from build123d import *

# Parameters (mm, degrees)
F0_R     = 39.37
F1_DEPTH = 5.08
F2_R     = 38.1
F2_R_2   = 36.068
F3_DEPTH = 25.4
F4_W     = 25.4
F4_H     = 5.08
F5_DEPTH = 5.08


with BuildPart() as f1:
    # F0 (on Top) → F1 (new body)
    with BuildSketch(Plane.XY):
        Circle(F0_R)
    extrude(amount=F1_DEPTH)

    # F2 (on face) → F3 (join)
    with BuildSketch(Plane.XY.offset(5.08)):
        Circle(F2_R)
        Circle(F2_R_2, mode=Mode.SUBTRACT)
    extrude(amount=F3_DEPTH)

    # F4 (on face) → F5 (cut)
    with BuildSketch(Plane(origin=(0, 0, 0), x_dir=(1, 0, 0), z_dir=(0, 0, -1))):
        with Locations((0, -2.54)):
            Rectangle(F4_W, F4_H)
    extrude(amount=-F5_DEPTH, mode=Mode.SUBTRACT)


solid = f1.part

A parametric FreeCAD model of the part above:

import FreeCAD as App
import Part
import Sketcher
Q = App.Units.Quantity

doc = App.newDocument("Part")
body = doc.addObject("PartDesign::Body", "Body")

sketch1 = body.newObject("Sketcher::SketchObject", "Sketch")
sketch1.AttachmentSupport = (doc.getObject("XY_Plane"), [""])
sketch1.MapMode = "FlatFace"
sketch1.addGeometry(Part.Circle(App.Vector(0, 0, 0), App.Vector(0, 0, 1), 39), False)
sketch1.addConstraint([
    Sketcher.Constraint("Coincident", 0, 3, -1, 1),
    Sketcher.Constraint("Diameter", 0, Q("3.1 in")),
])
pad1 = body.newObject("PartDesign::Pad", "Pad")
pad1.Profile = sketch1
pad1.Length = Q("0.2 in")

sketch2 = body.newObject("Sketcher::SketchObject", "Sketch001")
sketch2.AttachmentSupport = (doc.getObject("XY_Plane"), [""])
sketch2.MapMode = "FlatFace"
sketch2.AttachmentOffset = App.Placement(App.Vector(0, 0, 0.2 * 25.4), App.Rotation())
sketch2.addGeometry([
    Part.Circle(App.Vector(0, 0, 0), App.Vector(0, 0, 1), 38),
    Part.Circle(App.Vector(0, 0, 0), App.Vector(0, 0, 1), 36),
], False)
sketch2.addConstraint([
    Sketcher.Constraint("Coincident", 0, 3, -1, 1),
    Sketcher.Constraint("Coincident", 1, 3, -1, 1),
    Sketcher.Constraint("Diameter", 0, Q("3 in")),
    Sketcher.Constraint("Diameter", 1, Q("2.84 in")),
])
pad2 = body.newObject("PartDesign::Pad", "Pad001")
pad2.Profile = sketch2
pad2.Length = Q("1 in")

sketch3 = body.newObject("Sketcher::SketchObject", "Sketch002")
sketch3.AttachmentSupport = (doc.getObject("XY_Plane"), [""])
sketch3.MapMode = "FlatFace"
sketch3.addGeometry([
    Part.LineSegment(App.Vector(-13, 0, 0), App.Vector(-13, 5, 0)),
    Part.LineSegment(App.Vector(-13, 5, 0), App.Vector(13, 5, 0)),
    Part.LineSegment(App.Vector(13, 5, 0), App.Vector(13, 0, 0)),
    Part.LineSegment(App.Vector(13, 0, 0), App.Vector(-13, 0, 0)),
], False)
sketch3.addConstraint([
    Sketcher.Constraint("Coincident", 0, 2, 1, 1),
    Sketcher.Constraint("Coincident", 1, 2, 2, 1),
    Sketcher.Constraint("Coincident", 2, 2, 3, 1),
    Sketcher.Constraint("Coincident", 3, 2, 0, 1),
    Sketcher.Constraint("Vertical", 0),
    Sketcher.Constraint("Horizontal", 1),
    Sketcher.Constraint("Vertical", 2),
    Sketcher.Constraint("Horizontal", 3),
    Sketcher.Constraint("Symmetric", 2, 2, 3, 2, -1, 1),
    Sketcher.Constraint("DistanceX", 1, 1, 1, 2, Q("1 in")),
    Sketcher.Constraint("DistanceY", 0, 1, 0, 2, Q("0.2 in")),
])
pocket1 = body.newObject("PartDesign::Pocket", "Pocket")
pocket1.Profile = sketch3
pocket1.Length = Q("0.2 in")
pocket1.Reversed = True

doc.recompute()
